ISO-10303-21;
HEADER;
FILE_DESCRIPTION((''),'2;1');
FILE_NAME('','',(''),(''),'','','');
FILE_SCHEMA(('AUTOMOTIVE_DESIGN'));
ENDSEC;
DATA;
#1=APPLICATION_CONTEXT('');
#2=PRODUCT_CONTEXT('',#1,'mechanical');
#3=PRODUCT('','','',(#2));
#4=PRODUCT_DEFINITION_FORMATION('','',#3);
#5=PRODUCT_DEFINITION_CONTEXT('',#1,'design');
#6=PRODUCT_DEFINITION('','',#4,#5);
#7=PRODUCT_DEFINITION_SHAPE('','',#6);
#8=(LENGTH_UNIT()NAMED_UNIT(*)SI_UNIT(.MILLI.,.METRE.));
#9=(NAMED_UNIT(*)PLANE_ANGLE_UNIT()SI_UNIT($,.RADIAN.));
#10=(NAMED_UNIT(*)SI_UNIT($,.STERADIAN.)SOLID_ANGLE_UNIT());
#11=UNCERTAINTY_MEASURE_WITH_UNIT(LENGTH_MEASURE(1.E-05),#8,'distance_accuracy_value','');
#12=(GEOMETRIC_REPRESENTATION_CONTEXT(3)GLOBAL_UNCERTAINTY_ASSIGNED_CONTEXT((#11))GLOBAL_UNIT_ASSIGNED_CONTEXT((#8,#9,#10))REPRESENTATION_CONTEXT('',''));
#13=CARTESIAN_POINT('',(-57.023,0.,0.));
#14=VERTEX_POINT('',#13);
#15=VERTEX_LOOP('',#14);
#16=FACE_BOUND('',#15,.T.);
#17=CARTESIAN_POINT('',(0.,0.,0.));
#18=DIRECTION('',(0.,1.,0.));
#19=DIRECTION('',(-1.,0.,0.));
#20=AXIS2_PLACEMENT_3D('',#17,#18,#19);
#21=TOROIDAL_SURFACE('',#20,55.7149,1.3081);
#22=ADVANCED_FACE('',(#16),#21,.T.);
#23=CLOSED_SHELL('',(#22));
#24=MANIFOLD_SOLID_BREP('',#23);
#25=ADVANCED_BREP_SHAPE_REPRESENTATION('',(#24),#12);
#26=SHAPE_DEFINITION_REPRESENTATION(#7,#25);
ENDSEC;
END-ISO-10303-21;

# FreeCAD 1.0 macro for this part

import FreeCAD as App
import Part
import Sketcher
from FreeCAD import Vector
Q = App.Units.Quantity

doc = App.newDocument("Part")
body = doc.addObject("PartDesign::Body", "Body")

# Sketch on XY plane
sketch1 = doc.addObject("Sketcher::SketchObject", "Sketch")
body.addObject(sketch1)
sketch1.AttachmentSupport = (doc.XY_Plane, [""])
sketch1.MapMode = "FlatFace"
sketch1.addGeometry(Part.Circle(Vector(-55.7, 0, 0), Vector(0, 0, 1), 1.3), False)
sketch1.addConstraint([
    Sketcher.Constraint("PointOnObject", 0, 3, -1),
    Sketcher.Constraint("Diameter", 0, Q("0.103 in")),
    Sketcher.Constraint("DistanceX", 0, 3, -1, 1, Q("2.1935 in")),
])
revolution = doc.addObject("PartDesign::Revolution", "Revolution")
body.addObject(revolution)
revolution.Profile = sketch1
revolution.ReferenceAxis = (sketch1, ["V_Axis"])
revolution.Angle = 360

doc.recompute()
